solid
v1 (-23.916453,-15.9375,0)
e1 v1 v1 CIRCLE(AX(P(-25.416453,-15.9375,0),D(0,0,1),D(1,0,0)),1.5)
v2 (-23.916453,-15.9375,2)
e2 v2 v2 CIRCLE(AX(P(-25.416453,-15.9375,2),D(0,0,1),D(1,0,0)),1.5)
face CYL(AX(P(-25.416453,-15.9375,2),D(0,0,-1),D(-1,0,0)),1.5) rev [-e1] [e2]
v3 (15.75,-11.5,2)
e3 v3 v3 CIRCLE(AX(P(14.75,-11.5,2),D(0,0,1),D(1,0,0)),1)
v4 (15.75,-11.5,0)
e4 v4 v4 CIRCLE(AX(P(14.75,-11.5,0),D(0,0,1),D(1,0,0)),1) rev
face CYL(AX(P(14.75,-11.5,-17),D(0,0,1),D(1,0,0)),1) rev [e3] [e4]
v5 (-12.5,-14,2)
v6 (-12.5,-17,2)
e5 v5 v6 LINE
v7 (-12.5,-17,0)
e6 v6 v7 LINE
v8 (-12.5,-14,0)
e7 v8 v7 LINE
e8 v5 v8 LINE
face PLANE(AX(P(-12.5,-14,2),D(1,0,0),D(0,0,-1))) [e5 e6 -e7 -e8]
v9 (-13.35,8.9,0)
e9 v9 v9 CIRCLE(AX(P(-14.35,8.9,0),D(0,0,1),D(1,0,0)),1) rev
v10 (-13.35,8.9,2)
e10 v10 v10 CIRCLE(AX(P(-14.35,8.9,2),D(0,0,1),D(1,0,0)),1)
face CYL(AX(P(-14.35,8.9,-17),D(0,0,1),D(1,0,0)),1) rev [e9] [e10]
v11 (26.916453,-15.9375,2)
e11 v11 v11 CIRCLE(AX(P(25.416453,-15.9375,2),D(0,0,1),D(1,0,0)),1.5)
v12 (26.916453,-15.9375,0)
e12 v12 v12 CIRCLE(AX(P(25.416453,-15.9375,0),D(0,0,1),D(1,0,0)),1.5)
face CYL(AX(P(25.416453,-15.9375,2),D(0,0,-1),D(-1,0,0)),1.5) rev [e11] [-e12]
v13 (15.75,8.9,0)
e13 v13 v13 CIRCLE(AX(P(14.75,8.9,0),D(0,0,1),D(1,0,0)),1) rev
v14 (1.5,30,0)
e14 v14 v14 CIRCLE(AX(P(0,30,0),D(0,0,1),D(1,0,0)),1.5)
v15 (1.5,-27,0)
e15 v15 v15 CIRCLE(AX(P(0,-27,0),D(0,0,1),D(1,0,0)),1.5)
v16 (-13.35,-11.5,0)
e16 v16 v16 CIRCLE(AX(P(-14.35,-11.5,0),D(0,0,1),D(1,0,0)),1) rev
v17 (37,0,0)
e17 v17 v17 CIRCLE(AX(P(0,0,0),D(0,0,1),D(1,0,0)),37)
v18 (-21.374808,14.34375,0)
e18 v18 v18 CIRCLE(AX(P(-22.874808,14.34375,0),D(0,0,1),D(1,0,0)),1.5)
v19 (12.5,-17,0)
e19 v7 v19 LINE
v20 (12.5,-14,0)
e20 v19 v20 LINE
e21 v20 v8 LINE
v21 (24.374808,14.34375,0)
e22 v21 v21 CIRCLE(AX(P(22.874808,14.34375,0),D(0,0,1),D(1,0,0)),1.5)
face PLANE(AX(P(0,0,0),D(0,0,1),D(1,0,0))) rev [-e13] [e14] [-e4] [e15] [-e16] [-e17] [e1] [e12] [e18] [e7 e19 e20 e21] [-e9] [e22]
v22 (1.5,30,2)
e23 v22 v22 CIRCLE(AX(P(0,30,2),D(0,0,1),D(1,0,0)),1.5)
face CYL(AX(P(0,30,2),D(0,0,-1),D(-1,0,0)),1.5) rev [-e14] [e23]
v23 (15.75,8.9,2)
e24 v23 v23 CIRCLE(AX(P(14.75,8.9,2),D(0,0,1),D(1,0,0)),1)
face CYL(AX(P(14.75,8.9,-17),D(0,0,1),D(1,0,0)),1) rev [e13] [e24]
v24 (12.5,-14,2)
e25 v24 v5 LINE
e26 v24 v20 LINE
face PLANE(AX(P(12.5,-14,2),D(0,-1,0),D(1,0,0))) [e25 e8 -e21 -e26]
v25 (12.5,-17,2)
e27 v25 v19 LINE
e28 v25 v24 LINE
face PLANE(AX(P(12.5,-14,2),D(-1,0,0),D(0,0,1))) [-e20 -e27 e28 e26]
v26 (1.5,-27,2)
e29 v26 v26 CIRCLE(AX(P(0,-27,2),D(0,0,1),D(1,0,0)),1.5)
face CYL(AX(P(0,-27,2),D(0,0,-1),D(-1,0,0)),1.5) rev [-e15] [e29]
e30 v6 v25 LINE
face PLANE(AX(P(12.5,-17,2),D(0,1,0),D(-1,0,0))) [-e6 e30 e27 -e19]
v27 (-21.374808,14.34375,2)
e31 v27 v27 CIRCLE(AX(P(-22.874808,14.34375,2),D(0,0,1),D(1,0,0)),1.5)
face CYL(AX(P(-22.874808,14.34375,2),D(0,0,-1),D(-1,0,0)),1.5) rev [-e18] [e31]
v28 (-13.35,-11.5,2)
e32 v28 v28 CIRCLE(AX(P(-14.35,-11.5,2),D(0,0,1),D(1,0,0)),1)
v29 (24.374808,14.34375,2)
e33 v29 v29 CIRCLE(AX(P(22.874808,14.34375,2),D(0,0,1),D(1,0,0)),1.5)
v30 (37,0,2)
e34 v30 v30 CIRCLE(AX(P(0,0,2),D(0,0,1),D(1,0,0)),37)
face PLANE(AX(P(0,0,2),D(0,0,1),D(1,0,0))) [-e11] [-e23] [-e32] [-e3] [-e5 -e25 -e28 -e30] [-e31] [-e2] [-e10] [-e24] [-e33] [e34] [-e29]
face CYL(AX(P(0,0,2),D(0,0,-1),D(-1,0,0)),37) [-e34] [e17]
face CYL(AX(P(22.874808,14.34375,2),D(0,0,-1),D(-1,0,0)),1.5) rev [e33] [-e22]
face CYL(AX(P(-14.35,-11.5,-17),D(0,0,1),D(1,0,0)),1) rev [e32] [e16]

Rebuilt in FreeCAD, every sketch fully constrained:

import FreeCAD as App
import Part
import Sketcher

V = App.Vector
Q = App.Units.Quantity

doc = App.newDocument("Part")
body = doc.addObject("PartDesign::Body", "Body")

# Sketch on XY plane
sketch1 = body.newObject("Sketcher::SketchObject", "Sketch")
sketch1.AttachmentSupport = (doc.getObject("XY_Plane"), [""])
sketch1.MapMode = "FlatFace"
sketch1.addGeometry(Part.Circle(V(0, 0, 0), V(0, 0, 1), 37), False)
sketch1.addGeometry(Part.Circle(V(-25.4, -15.9, 0), V(0, 0, 1), 1.5), False)
sketch1.addGeometry(Part.LineSegment(V(12.5, -17, 0), V(-12.5, -17, 0)), False)
sketch1.addGeometry(Part.LineSegment(V(-12.5, -17, 0), V(-12.5, -14, 0)), False)
sketch1.addGeometry(Part.LineSegment(V(-12.5, -14, 0), V(12.5, -14, 0)), False)
sketch1.addGeometry(Part.LineSegment(V(12.5, -14, 0), V(12.5, -17, 0)), False)
sketch1.addGeometry(Part.Circle(V(0, -27, 0), V(0, 0, 1), 1.5), False)
sketch1.addGeometry(Part.Circle(V(25.4, -15.9, 0), V(0, 0, 1), 1.5), False)
sketch1.addGeometry(Part.Circle(V(-22.9, 14.3, 0), V(0, 0, 1), 1.5), False)
sketch1.addGeometry(Part.Circle(V(22.9, 14.3, 0), V(0, 0, 1), 1.5), False)
sketch1.addGeometry(Part.Circle(V(0, 30, 0), V(0, 0, 1), 1.5), False)
sketch1.addConstraint(Sketcher.Constraint("Coincident", 2, 2, 3, 1))
sketch1.addConstraint(Sketcher.Constraint("Coincident", 3, 2, 4, 1))
sketch1.addConstraint(Sketcher.Constraint("Coincident", 4, 2, 5, 1))
sketch1.addConstraint(Sketcher.Constraint("Coincident", 5, 2, 2, 1))
sketch1.addConstraint(Sketcher.Constraint("Horizontal", 2))
sketch1.addConstraint(Sketcher.Constraint("Vertical", 3))
sketch1.addConstraint(Sketcher.Constraint("Horizontal", 4))
sketch1.addConstraint(Sketcher.Constraint("Vertical", 5))
sketch1.addConstraint(Sketcher.Constraint("Coincident", 0, 3, -1, 1))
sketch1.addConstraint(Sketcher.Constraint("Equal", 1, 6))
sketch1.addConstraint(Sketcher.Constraint("Equal", 6, 7))
sketch1.addConstraint(Sketcher.Constraint("Equal", 7, 8))
sketch1.addConstraint(Sketcher.Constraint("Equal", 8, 9))
sketch1.addConstraint(Sketcher.Constraint("Equal", 9, 10))
sketch1.addConstraint(Sketcher.Constraint("Symmetric", 1, 3, 7, 3, -2))
sketch1.addConstraint(Sketcher.Constraint("Symmetric", 8, 3, 9, 3, -2))
sketch1.addConstraint(Sketcher.Constraint("PointOnObject", 6, 3, -2))
sketch1.addConstraint(Sketcher.Constraint("PointOnObject", 10, 3, -2))
sketch1.addConstraint(Sketcher.Constraint("Diameter", 0, Q("74 mm")))
sketch1.addConstraint(Sketcher.Constraint("Diameter", 1, Q("3 mm")))
sketch1.addConstraint(Sketcher.Constraint("DistanceX", 2, 2, 2, 1, Q("25 mm")))
sketch1.addConstraint(Sketcher.Constraint("DistanceY", 3, 1, 3, 2, Q("3 mm")))
sketch1.addConstraint(Sketcher.Constraint("DistanceY", 6, 3, -1, 1, Q("27 mm")))
sketch1.addConstraint(Sketcher.Constraint("DistanceY", -1, 1, 10, 3, Q("30 mm")))
sketch1.addConstraint(Sketcher.Constraint("DistanceY", 2, 2, -1, 1, Q("17 mm")))
sketch1.addConstraint(Sketcher.Constraint("DistanceX", 2, 2, -1, 1, Q("12.5 mm")))
sketch1.addConstraint(Sketcher.Constraint("DistanceY", 1, 3, -1, 1, Q("15.9375 mm")))
sketch1.addConstraint(Sketcher.Constraint("DistanceY", -1, 1, 8, 3, Q("14.34375 mm")))
sketch1.addConstraint(Sketcher.Constraint("DistanceX", 8, 3, 7, 3, Q("48.291261 mm")))
sketch1.addConstraint(Sketcher.Constraint("DistanceX", 1, 3, -1, 1, Q("25.416453 mm")))
pad1 = body.newObject("PartDesign::Pad", "Pad")
pad1.Profile = sketch1
pad1.Length = 2

# Sketch on XY plane
sketch2 = body.newObject("Sketcher::SketchObject", "Sketch001")
sketch2.AttachmentSupport = (doc.getObject("XY_Plane"), [""])
sketch2.MapMode = "FlatFace"
sketch2.addGeometry(Part.LineSegment(V(12.8, 14.9, 0), V(16.8, 14.9, 0)), False)
sketch2.addGeometry(Part.LineSegment(V(16.8, 14.9, 0), V(16.8, -13.5, 0)), False)
sketch2.addGeometry(Part.LineSegment(V(16.8, -13.5, 0), V(-16.4, -13.5, 0)), False)
sketch2.addGeometry(Part.LineSegment(V(-16.4, -13.5, 0), V(-16.4, 14.9, 0)), False)
sketch2.addGeometry(Part.LineSegment(V(-16.4, 14.9, 0), V(-12.3, 14.9, 0)), False)
sketch2.addGeometry(Part.LineSegment(V(-12.3, 14.9, 0), V(-12.3, -9.5, 0)), False)
sketch2.addGeometry(Part.LineSegment(V(-12.3, -9.5, 0), V(12.8, -9.5, 0)), False)
sketch2.addGeometry(Part.LineSegment(V(12.8, -9.5, 0), V(12.8, 14.9, 0)), False)
sketch2.addConstraint(Sketcher.Constraint("Coincident", 0, 2, 1, 1))
sketch2.addConstraint(Sketcher.Constraint("Coincident", 1, 2, 2, 1))
sketch2.addConstraint(Sketcher.Constraint("Coincident", 2, 2, 3, 1))
sketch2.addConstraint(Sketcher.Constraint("Coincident", 3, 2, 4, 1))
sketch2.addConstraint(Sketcher.Constraint("Coincident", 4, 2, 5, 1))
sketch2.addConstraint(Sketcher.Constraint("Coincident", 5, 2, 6, 1))
sketch2.addConstraint(Sketcher.Constraint("Coincident", 6, 2, 7, 1))
sketch2.addConstraint(Sketcher.Constraint("Coincident", 7, 2, 0, 1))
sketch2.addConstraint(Sketcher.Constraint("Horizontal", 0))
sketch2.addConstraint(Sketcher.Constraint("Vertical", 1))
sketch2.addConstraint(Sketcher.Constraint("Horizontal", 2))
sketch2.addConstraint(Sketcher.Constraint("Vertical", 3))
sketch2.addConstraint(Sketcher.Constraint("Horizontal", 4))
sketch2.addConstraint(Sketcher.Constraint("Vertical", 5))
sketch2.addConstraint(Sketcher.Constraint("Horizontal", 6))
sketch2.addConstraint(Sketcher.Constraint("Vertical", 7))
sketch2.addConstraint(Sketcher.Constraint("Horizontal", 0, 2, 3, 2))
sketch2.addConstraint(Sketcher.Constraint("Equal", 0, 4))
sketch2.addConstraint(Sketcher.Constraint("DistanceX", 0, 1, 0, 2, Q("4 mm")))
sketch2.addConstraint(Sketcher.Constraint("DistanceX", 2, 2, 2, 1, Q("33.1 mm")))
sketch2.addConstraint(Sketcher.Constraint("DistanceY", 1, 2, 1, 1, Q("28.4 mm")))
sketch2.addConstraint(Sketcher.Constraint("DistanceY", 5, 2, 5, 1, Q("24.4 mm")))
sketch2.addConstraint(Sketcher.Constraint("DistanceY", -1, 1, 0, 2, Q("14.9 mm")))
sketch2.addConstraint(Sketcher.Constraint("DistanceX", -1, 1, 0, 2, Q("16.75 mm")))
pad2 = body.newObject("PartDesign::Pad", "Pad001")
pad2.Profile = sketch2
pad2.Length = 15
pad2.Reversed = True

# Sketch on YZ plane
sketch3 = body.newObject("Sketcher::SketchObject", "Sketch002")
sketch3.AttachmentSupport = (doc.getObject("YZ_Plane"), [""])
sketch3.MapMode = "FlatFace"
sketch3.AttachmentOffset = App.Placement(V(0, 0, -12.35), App.Rotation())
sketch3.addGeometry(Part.LineSegment(V(14.9, -8.6, 0), V(-13.5, -8.6, 0)), False)
sketch3.addGeometry(Part.LineSegment(V(-13.5, -8.6, 0), V(-13.5, -10.6, 0)), False)
sketch3.addGeometry(Part.LineSegment(V(-13.5, -10.6, 0), V(14.9, -10.6, 0)), False)
sketch3.addGeometry(Part.LineSegment(V(14.9, -10.6, 0), V(14.9, -8.6, 0)), False)
sketch3.addGeometry(Part.LineSegment(V(14.9, -5.6, 0), V(-13.5, -5.6, 0)), False)
sketch3.addGeometry(Part.LineSegment(V(-13.5, -5.6, 0), V(-13.5, -7.6, 0)), False)
sketch3.addGeometry(Part.LineSegment(V(-13.5, -7.6, 0), V(14.9, -7.6, 0)), False)
sketch3.addGeometry(Part.LineSegment(V(14.9, -7.6, 0), V(14.9, -5.6, 0)), False)
sketch3.addConstraint(Sketcher.Constraint("Coincident", 0, 2, 1, 1))
sketch3.addConstraint(Sketcher.Constraint("Coincident", 1, 2, 2, 1))
sketch3.addConstraint(Sketcher.Constraint("Coincident", 2, 2, 3, 1))
sketch3.addConstraint(Sketcher.Constraint("Coincident", 3, 2, 0, 1))
sketch3.addConstraint(Sketcher.Constraint("Coincident", 4, 2, 5, 1))
sketch3.addConstraint(Sketcher.Constraint("Coincident", 5, 2, 6, 1))
sketch3.addConstraint(Sketcher.Constraint("Coincident", 6, 2, 7, 1))
sketch3.addConstraint(Sketcher.Constraint("Coincident", 7, 2, 4, 1))
sketch3.addConstraint(Sketcher.Constraint("Horizontal", 0))
sketch3.addConstraint(Sketcher.Constraint("Vertical", 1))
sketch3.addConstraint(Sketcher.Constraint("Horizontal", 2))
sketch3.addConstraint(Sketcher.Constraint("Vertical", 3))
sketch3.addConstraint(Sketcher.Constraint("Horizontal", 4))
sketch3.addConstraint(Sketcher.Constraint("Vertical", 5))
sketch3.addConstraint(Sketcher.Constraint("Horizontal", 6))
sketch3.addConstraint(Sketcher.Constraint("Vertical", 7))
sketch3.addConstraint(Sketcher.Constraint("Vertical", 1, 2, 4, 2))
sketch3.addConstraint(Sketcher.Constraint("Vertical", 3, 2, 6, 2))
sketch3.addConstraint(Sketcher.Constraint("Equal", 3, 5))
sketch3.addConstraint(Sketcher.Constraint("DistanceY", 1, 2, 1, 1, Q("2 mm")))
sketch3.addConstraint(Sketcher.Constraint("DistanceX", 0, 2, 0, 1, Q("28.4 mm")))
sketch3.addConstraint(Sketcher.Constraint("DistanceY", 0, 2, 4, 2, Q("3 mm")))
sketch3.addConstraint(Sketcher.Constraint("DistanceX", 0, 2, -1, 1, Q("13.5 mm")))
sketch3.addConstraint(Sketcher.Constraint("DistanceY", 0, 2, -1, 1, Q("8.625 mm")))
pad3 = body.newObject("PartDesign::Pad", "Pad002")
pad3.Profile = sketch3
pad3.Length = 2.25

# Sketch on YZ plane
sketch4 = body.newObject("Sketcher::SketchObject", "Sketch003")
sketch4.AttachmentSupport = (doc.getObject("YZ_Plane"), [""])
sketch4.MapMode = "FlatFace"
sketch4.AttachmentOffset = App.Placement(V(0, 0, 12.75), App.Rotation())
sketch4.addGeometry(Part.LineSegment(V(14.9, -10.6, 0), V(-9.5, -10.6, 0)), False)
sketch4.addGeometry(Part.LineSegment(V(-9.5, -10.6, 0), V(-9.5, -8.6, 0)), False)
sketch4.addGeometry(Part.LineSegment(V(-9.5, -8.6, 0), V(14.9, -8.6, 0)), False)
sketch4.addGeometry(Part.LineSegment(V(14.9, -8.6, 0), V(14.9, -10.6, 0)), False)
sketch4.addGeometry(Part.LineSegment(V(14.9, -7.6, 0), V(-9.5, -7.6, 0)), False)
sketch4.addGeometry(Part.LineSegment(V(-9.5, -7.6, 0), V(-9.5, -5.6, 0)), False)
sketch4.addGeometry(Part.LineSegment(V(-9.5, -5.6, 0), V(14.9, -5.6, 0)), False)
sketch4.addGeometry(Part.LineSegment(V(14.9, -5.6, 0), V(14.9, -7.6, 0)), False)
sketch4.addConstraint(Sketcher.Constraint("Coincident", 0, 2, 1, 1))
sketch4.addConstraint(Sketcher.Constraint("Coincident", 1, 2, 2, 1))
sketch4.addConstraint(Sketcher.Constraint("Coincident", 2, 2, 3, 1))
sketch4.addConstraint(Sketcher.Constraint("Coincident", 3, 2, 0, 1))
sketch4.addConstraint(Sketcher.Constraint("Coincident", 4, 2, 5, 1))
sketch4.addConstraint(Sketcher.Constraint("Coincident", 5, 2, 6, 1))
sketch4.addConstraint(Sketcher.Constraint("Coincident", 6, 2, 7, 1))
sketch4.addConstraint(Sketcher.Constraint("Coincident", 7, 2, 4, 1))
sketch4.addConstraint(Sketcher.Constraint("Horizontal", 0))
sketch4.addConstraint(Sketcher.Constraint("Vertical", 1))
sketch4.addConstraint(Sketcher.Constraint("Horizontal", 2))
sketch4.addConstraint(Sketcher.Constraint("Vertical", 3))
sketch4.addConstraint(Sketcher.Constraint("Horizontal", 4))
sketch4.addConstraint(Sketcher.Constraint("Vertical", 5))
sketch4.addConstraint(Sketcher.Constraint("Horizontal", 6))
sketch4.addConstraint(Sketcher.Constraint("Vertical", 7))
sketch4.addConstraint(Sketcher.Constraint("Vertical", 1, 2, 4, 2))
sketch4.addConstraint(Sketcher.Constraint("Vertical", 3, 2, 6, 2))
sketch4.addConstraint(Sketcher.Constraint("Equal", 3, 5))
sketch4.addConstraint(Sketcher.Constraint("DistanceY", 1, 1, 1, 2, Q("2 mm")))
sketch4.addConstraint(Sketcher.Constraint("DistanceX", 0, 2, 0, 1, Q("24.4 mm")))
sketch4.addConstraint(Sketcher.Constraint("DistanceY", 1, 2, 4, 2, Q("1 mm")))
sketch4.addConstraint(Sketcher.Constraint("DistanceX", 0, 2, -1, 1, Q("9.5 mm")))
sketch4.addConstraint(Sketcher.Constraint("DistanceY", 0, 2, -1, 1, Q("10.625 mm")))
pad4 = body.newObject("PartDesign::Pad", "Pad003")
pad4.Profile = sketch4
pad4.Length = 2.25
pad4.Reversed = True

# Sketch on XY plane
sketch5 = body.newObject("Sketcher::SketchObject", "Sketch004")
sketch5.AttachmentSupport = (doc.getObject("XY_Plane"), [""])
sketch5.MapMode = "FlatFace"
sketch5.AttachmentOffset = App.Placement(V(0, 0, -15), App.Rotation())
sketch5.addGeometry(Part.LineSegment(V(17, 15, 0), V(17, -14, 0)), False)
sketch5.addGeometry(Part.LineSegment(V(17, -14, 0), V(-16, -14, 0)), False)
sketch5.addGeometry(Part.LineSegment(V(-16, -14, 0), V(-16, 15, 0)), False)
sketch5.addGeometry(Part.LineSegment(V(-16, 15, 0), V(17, 15, 0)), False)
sketch5.addConstraint(Sketcher.Constraint("Coincident", 0, 2, 1, 1))
sketch5.addConstraint(Sketcher.Constraint("Coincident", 1, 2, 2, 1))
sketch5.addConstraint(Sketcher.Constraint("Coincident", 2, 2, 3, 1))
sketch5.addConstraint(Sketcher.Constraint("Coincident", 3, 2, 0, 1))
sketch5.addConstraint(Sketcher.Constraint("Vertical", 0))
sketch5.addConstraint(Sketcher.Constraint("Horizontal", 1))
sketch5.addConstraint(Sketcher.Constraint("Vertical", 2))
sketch5.addConstraint(Sketcher.Constraint("Horizontal", 3))
sketch5.addConstraint(Sketcher.Constraint("DistanceX", 1, 2, 1, 1, Q("33.1 mm")))
sketch5.addConstraint(Sketcher.Constraint("DistanceY", 0, 2, 0, 1, Q("28.4 mm")))
sketch5.addConstraint(Sketcher.Constraint("DistanceY", 0, 2, -1, 1, Q("13.5 mm")))
sketch5.addConstraint(Sketcher.Constraint("DistanceX", -1, 1, 0, 2, Q("16.75 mm")))
pad5 = body.newObject("PartDesign::Pad", "Pad004")
pad5.Profile = sketch5
pad5.Length = 1

# Sketch on XY plane
sketch6 = body.newObject("Sketcher::SketchObject", "Sketch005")
sketch6.AttachmentSupport = (doc.getObject("XY_Plane"), [""])
sketch6.MapMode = "FlatFace"
sketch6.AttachmentOffset = App.Placement(V(0, 0, -15), App.Rotation())
sketch6.addGeometry(Part.LineSegment(V(8, 8, 0), V(8, -8, 0)), False)
sketch6.addGeometry(Part.LineSegment(V(8, -8, 0), V(-8, -8, 0)), False)
sketch6.addGeometry(Part.LineSegment(V(-8, -8, 0), V(-8, 8, 0)), False)
sketch6.addGeometry(Part.LineSegment(V(-8, 8, 0), V(8, 8, 0)), False)
sketch6.addConstraint(Sketcher.Constraint("Coincident", 0, 2, 1, 1))
sketch6.addConstraint(Sketcher.Constraint("Coincident", 1, 2, 2, 1))
sketch6.addConstraint(Sketcher.Constraint("Coincident", 2, 2, 3, 1))
sketch6.addConstraint(Sketcher.Constraint("Coincident", 3, 2, 0, 1))
sketch6.addConstraint(Sketcher.Constraint("Vertical", 0))
sketch6.addConstraint(Sketcher.Constraint("Horizontal", 1))
sketch6.addConstraint(Sketcher.Constraint("Vertical", 2))
sketch6.addConstraint(Sketcher.Constraint("Horizontal", 3))
sketch6.addConstraint(Sketcher.Constraint("Symmetric", 0, 2, 2, 2, -1, 1))
sketch6.addConstraint(Sketcher.Constraint("Equal", 3, 0))
sketch6.addConstraint(Sketcher.Constraint("DistanceX", 1, 2, 1, 1, Q("15 mm")))
pocket1 = body.newObject("PartDesign::Pocket", "Pocket")
pocket1.Profile = sketch6
pocket1.Length = 3
pocket1.Reversed = True

# Sketch on XZ plane
sketch7 = body.newObject("Sketcher::SketchObject", "Sketch006")
sketch7.AttachmentSupport = (doc.getObject("XZ_Plane"), [""])
sketch7.MapMode = "FlatFace"
sketch7.AttachmentOffset = App.Placement(V(0, 0, 13.5), App.Rotation())
sketch7.addGeometry(Part.LineSegment(V(-10.5, -4.4, 0), V(-10.5, -6.9, 0)), False)
sketch7.addGeometry(Part.LineSegment(V(-10.5, -6.9, 0), V(10.5, -6.9, 0)), False)
sketch7.addGeometry(Part.LineSegment(V(10.5, -6.9, 0), V(10.5, -4.4, 0)), False)
sketch7.addGeometry(Part.LineSegment(V(10.5, -4.4, 0), V(-10.5, -4.4, 0)), False)
sketch7.addConstraint(Sketcher.Constraint("Coincident", 0, 2, 1, 1))
sketch7.addConstraint(Sketcher.Constraint("Coincident", 1, 2, 2, 1))
sketch7.addConstraint(Sketcher.Constraint("Coincident", 2, 2, 3, 1))
sketch7.addConstraint(Sketcher.Constraint("Coincident", 3, 2, 0, 1))
sketch7.addConstraint(Sketcher.Constraint("Vertical", 0))
sketch7.addConstraint(Sketcher.Constraint("Horizontal", 1))
sketch7.addConstraint(Sketcher.Constraint("Vertical", 2))
sketch7.addConstraint(Sketcher.Constraint("Horizontal", 3))
sketch7.addConstraint(Sketcher.Constraint("DistanceX", 1, 1, 1, 2, Q("21 mm")))
sketch7.addConstraint(Sketcher.Constraint("DistanceY", 0, 2, 0, 1, Q("2.5 mm")))
sketch7.addConstraint(Sketcher.Constraint("DistanceX", 0, 2, -1, 1, Q("10.5 mm")))
sketch7.addConstraint(Sketcher.Constraint("DistanceY", 0, 2, -1, 1, Q("6.9 mm")))
pocket2 = body.newObject("PartDesign::Pocket", "Pocket001")
pocket2.Profile = sketch7
pocket2.Length = 3

# Sketch on XY plane
sketch8 = body.newObject("Sketcher::SketchObject", "Sketch007")
sketch8.AttachmentSupport = (doc.getObject("XY_Plane"), [""])
sketch8.MapMode = "FlatFace"
sketch8.AttachmentOffset = App.Placement(V(0, 0, 2), App.Rotation())
sketch8.addGeometry(Part.Circle(V(-14.3, 8.9, 0), V(0, 0, 1), 1), False)
sketch8.addGeometry(Part.Circle(V(-14.3, -11.5, 0), V(0, 0, 1), 1), False)
sketch8.addGeometry(Part.Circle(V(14.8, -11.5, 0), V(0, 0, 1), 1), False)
sketch8.addGeometry(Part.Circle(V(14.8, 8.9, 0), V(0, 0, 1), 1), False)
sketch8.addConstraint(Sketcher.Constraint("Equal", 0, 1))
sketch8.addConstraint(Sketcher.Constraint("Equal", 1, 2))
sketch8.addConstraint(Sketcher.Constraint("Equal", 2, 3))
sketch8.addConstraint(Sketcher.Constraint("Horizontal", 1, 3, 2, 3))
sketch8.addConstraint(Sketcher.Constraint("Horizontal", 0, 3, 3, 3))
sketch8.addConstraint(Sketcher.Constraint("Vertical", 0, 3, 1, 3))
sketch8.addConstraint(Sketcher.Constraint("Vertical", 2, 3, 3, 3))
sketch8.addConstraint(Sketcher.Constraint("Diameter", 0, Q("2 mm")))
sketch8.addConstraint(Sketcher.Constraint("DistanceY", -1, 1, 0, 3, Q("8.9 mm")))
sketch8.addConstraint(Sketcher.Constraint("DistanceY", 1, 3, -1, 1, Q("11.5 mm")))
sketch8.addConstraint(Sketcher.Constraint("DistanceX", 1, 3, 2, 3, Q("29.1 mm")))
sketch8.addConstraint(Sketcher.Constraint("DistanceX", 0, 3, -1, 1, Q("14.35 mm")))
pocket3 = body.newObject("PartDesign::Pocket", "Pocket002")
pocket3.Profile = sketch8
pocket3.Length = 19

# Sketch on XY plane
sketch9 = body.newObject("Sketcher::SketchObject", "Sketch008")
sketch9.AttachmentSupport = (doc.getObject("XY_Plane"), [""])
sketch9.MapMode = "FlatFace"
sketch9.AttachmentOffset = App.Placement(V(0, 0, -15), App.Rotation())
sketch9.addGeometry(Part.LineSegment(V(17, 15, 0), V(17, -14, 0)), False)
sketch9.addGeometry(Part.LineSegment(V(17, -14, 0), V(-16, -14, 0)), False)
sketch9.addGeometry(Part.LineSegment(V(-16, -14, 0), V(-16, 15, 0)), False)
sketch9.addGeometry(Part.LineSegment(V(-16, 15, 0), V(17, 15, 0)), False)
sketch9.addConstraint(Sketcher.Constraint("Coincident", 0, 2, 1, 1))
sketch9.addConstraint(Sketcher.Constraint("Coincident", 1, 2, 2, 1))
sketch9.addConstraint(Sketcher.Constraint("Coincident", 2, 2, 3, 1))
sketch9.addConstraint(Sketcher.Constraint("Coincident", 3, 2, 0, 1))
sketch9.addConstraint(Sketcher.Constraint("Vertical", 0))
sketch9.addConstraint(Sketcher.Constraint("Horizontal", 1))
sketch9.addConstraint(Sketcher.Constraint("Vertical", 2))
sketch9.addConstraint(Sketcher.Constraint("Horizontal", 3))
sketch9.addConstraint(Sketcher.Constraint("DistanceX", 1, 2, 1, 1, Q("33.1 mm")))
sketch9.addConstraint(Sketcher.Constraint("DistanceY", 0, 2, 0, 1, Q("28.4 mm")))
sketch9.addConstraint(Sketcher.Constraint("DistanceY", 0, 2, -1, 1, Q("13.5 mm")))
sketch9.addConstraint(Sketcher.Constraint("DistanceX", -1, 1, 0, 2, Q("16.75 mm")))
pocket4 = body.newObject("PartDesign::Pocket", "Pocket003")
pocket4.Profile = sketch9
pocket4.Length = 15
pocket4.Reversed = True

doc.recompute()
